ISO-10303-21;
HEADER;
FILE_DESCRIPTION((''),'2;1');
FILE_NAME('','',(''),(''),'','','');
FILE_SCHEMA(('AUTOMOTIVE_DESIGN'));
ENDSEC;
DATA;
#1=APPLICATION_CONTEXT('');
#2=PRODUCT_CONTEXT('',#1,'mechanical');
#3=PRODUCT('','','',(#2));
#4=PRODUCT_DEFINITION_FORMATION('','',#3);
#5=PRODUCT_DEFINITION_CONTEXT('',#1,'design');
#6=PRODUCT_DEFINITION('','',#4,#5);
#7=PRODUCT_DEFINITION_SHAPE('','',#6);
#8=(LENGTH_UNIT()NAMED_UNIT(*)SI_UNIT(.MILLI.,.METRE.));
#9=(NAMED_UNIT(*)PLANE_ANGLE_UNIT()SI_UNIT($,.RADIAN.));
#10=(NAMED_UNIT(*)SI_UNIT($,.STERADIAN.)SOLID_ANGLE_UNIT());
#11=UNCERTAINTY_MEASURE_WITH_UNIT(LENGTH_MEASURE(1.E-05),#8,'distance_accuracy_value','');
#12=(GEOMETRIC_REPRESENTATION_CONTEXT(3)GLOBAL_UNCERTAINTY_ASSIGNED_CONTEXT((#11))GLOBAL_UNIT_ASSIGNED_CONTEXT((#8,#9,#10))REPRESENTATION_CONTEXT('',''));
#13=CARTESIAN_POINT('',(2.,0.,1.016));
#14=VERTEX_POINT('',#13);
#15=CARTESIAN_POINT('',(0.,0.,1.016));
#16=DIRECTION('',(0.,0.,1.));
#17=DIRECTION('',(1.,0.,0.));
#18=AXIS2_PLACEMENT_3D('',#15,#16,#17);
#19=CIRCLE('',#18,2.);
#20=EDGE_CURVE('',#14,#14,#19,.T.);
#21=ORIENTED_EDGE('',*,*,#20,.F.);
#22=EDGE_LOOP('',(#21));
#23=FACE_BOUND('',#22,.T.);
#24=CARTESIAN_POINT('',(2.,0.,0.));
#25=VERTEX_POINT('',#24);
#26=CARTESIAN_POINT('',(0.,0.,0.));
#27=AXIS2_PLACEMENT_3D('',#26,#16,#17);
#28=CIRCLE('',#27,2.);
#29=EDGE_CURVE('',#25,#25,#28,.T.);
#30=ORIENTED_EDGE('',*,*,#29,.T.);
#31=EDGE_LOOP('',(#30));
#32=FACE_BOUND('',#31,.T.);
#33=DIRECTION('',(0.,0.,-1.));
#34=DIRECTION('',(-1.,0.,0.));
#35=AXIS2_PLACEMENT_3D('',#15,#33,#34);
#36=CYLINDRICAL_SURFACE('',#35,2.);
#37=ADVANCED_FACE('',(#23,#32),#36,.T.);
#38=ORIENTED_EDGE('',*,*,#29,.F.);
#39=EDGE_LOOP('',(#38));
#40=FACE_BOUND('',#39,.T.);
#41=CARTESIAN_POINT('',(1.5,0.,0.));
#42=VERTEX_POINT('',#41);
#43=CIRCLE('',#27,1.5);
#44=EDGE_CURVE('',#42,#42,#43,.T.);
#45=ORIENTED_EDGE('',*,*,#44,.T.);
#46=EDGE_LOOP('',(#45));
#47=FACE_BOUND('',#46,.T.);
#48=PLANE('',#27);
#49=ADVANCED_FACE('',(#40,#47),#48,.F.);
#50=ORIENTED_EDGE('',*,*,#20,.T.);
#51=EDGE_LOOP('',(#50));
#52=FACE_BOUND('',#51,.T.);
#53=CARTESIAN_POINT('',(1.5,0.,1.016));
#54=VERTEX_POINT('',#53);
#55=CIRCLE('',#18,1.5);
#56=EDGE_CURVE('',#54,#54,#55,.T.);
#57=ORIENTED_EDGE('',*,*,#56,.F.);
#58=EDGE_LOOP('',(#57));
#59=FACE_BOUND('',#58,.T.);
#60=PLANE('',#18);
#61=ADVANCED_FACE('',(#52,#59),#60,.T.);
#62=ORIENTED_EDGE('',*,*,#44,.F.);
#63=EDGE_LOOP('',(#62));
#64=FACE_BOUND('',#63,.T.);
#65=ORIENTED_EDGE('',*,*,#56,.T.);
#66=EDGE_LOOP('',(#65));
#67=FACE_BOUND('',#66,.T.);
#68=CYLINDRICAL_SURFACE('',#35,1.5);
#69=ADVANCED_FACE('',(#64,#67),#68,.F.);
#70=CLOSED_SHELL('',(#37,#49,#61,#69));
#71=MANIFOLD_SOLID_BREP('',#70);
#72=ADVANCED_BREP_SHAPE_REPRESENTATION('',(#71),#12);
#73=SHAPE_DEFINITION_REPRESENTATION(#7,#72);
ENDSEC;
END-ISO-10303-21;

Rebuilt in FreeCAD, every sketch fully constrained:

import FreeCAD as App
import Part
import Sketcher

V = App.Vector
Q = App.Units.Quantity

doc = App.newDocument("Part")
params = doc.addObject("Spreadsheet::Sheet", "Params")
for row, (alias, value) in enumerate([
    ("sketch1_diameter", "4 mm"),
    ("sketch1_diameter2", "3 mm"),
    ("pad1_length", "1.016 mm"),
], start=1):
    params.set(f"A{row}", alias)
    params.set(f"B{row}", "=" + value)
    params.setAlias(f"B{row}", alias)

body = doc.addObject("PartDesign::Body", "Body")

# Sketch on XY plane
sketch1 = body.newObject("Sketcher::SketchObject", "Sketch")
sketch1.AttachmentSupport = (doc.getObject("XY_Plane"), [""])
sketch1.MapMode = "FlatFace"
sketch1.addGeometry([
    Part.Circle(V(0, 0, 0), V(0, 0, 1), 2),
    Part.Circle(V(0, 0, 0), V(0, 0, 1), 1.5),
], False)
sketch1.addConstraint([
    Sketcher.Constraint("Coincident", 0, 3, -1, 1),
    Sketcher.Constraint("Coincident", 1, 3, -1, 1),
    Sketcher.Constraint("Diameter", 0, Q("4 mm")),
    Sketcher.Constraint("Diameter", 1, Q("3 mm")),
])
sketch1.setExpression("Constraints[2]", "Params.sketch1_diameter")
sketch1.setExpression("Constraints[3]", "Params.sketch1_diameter2")
pad1 = body.newObject("PartDesign::Pad", "Pad")
pad1.Profile = sketch1
pad1.setExpression("Length", "Params.pad1_length")

doc.recompute()
